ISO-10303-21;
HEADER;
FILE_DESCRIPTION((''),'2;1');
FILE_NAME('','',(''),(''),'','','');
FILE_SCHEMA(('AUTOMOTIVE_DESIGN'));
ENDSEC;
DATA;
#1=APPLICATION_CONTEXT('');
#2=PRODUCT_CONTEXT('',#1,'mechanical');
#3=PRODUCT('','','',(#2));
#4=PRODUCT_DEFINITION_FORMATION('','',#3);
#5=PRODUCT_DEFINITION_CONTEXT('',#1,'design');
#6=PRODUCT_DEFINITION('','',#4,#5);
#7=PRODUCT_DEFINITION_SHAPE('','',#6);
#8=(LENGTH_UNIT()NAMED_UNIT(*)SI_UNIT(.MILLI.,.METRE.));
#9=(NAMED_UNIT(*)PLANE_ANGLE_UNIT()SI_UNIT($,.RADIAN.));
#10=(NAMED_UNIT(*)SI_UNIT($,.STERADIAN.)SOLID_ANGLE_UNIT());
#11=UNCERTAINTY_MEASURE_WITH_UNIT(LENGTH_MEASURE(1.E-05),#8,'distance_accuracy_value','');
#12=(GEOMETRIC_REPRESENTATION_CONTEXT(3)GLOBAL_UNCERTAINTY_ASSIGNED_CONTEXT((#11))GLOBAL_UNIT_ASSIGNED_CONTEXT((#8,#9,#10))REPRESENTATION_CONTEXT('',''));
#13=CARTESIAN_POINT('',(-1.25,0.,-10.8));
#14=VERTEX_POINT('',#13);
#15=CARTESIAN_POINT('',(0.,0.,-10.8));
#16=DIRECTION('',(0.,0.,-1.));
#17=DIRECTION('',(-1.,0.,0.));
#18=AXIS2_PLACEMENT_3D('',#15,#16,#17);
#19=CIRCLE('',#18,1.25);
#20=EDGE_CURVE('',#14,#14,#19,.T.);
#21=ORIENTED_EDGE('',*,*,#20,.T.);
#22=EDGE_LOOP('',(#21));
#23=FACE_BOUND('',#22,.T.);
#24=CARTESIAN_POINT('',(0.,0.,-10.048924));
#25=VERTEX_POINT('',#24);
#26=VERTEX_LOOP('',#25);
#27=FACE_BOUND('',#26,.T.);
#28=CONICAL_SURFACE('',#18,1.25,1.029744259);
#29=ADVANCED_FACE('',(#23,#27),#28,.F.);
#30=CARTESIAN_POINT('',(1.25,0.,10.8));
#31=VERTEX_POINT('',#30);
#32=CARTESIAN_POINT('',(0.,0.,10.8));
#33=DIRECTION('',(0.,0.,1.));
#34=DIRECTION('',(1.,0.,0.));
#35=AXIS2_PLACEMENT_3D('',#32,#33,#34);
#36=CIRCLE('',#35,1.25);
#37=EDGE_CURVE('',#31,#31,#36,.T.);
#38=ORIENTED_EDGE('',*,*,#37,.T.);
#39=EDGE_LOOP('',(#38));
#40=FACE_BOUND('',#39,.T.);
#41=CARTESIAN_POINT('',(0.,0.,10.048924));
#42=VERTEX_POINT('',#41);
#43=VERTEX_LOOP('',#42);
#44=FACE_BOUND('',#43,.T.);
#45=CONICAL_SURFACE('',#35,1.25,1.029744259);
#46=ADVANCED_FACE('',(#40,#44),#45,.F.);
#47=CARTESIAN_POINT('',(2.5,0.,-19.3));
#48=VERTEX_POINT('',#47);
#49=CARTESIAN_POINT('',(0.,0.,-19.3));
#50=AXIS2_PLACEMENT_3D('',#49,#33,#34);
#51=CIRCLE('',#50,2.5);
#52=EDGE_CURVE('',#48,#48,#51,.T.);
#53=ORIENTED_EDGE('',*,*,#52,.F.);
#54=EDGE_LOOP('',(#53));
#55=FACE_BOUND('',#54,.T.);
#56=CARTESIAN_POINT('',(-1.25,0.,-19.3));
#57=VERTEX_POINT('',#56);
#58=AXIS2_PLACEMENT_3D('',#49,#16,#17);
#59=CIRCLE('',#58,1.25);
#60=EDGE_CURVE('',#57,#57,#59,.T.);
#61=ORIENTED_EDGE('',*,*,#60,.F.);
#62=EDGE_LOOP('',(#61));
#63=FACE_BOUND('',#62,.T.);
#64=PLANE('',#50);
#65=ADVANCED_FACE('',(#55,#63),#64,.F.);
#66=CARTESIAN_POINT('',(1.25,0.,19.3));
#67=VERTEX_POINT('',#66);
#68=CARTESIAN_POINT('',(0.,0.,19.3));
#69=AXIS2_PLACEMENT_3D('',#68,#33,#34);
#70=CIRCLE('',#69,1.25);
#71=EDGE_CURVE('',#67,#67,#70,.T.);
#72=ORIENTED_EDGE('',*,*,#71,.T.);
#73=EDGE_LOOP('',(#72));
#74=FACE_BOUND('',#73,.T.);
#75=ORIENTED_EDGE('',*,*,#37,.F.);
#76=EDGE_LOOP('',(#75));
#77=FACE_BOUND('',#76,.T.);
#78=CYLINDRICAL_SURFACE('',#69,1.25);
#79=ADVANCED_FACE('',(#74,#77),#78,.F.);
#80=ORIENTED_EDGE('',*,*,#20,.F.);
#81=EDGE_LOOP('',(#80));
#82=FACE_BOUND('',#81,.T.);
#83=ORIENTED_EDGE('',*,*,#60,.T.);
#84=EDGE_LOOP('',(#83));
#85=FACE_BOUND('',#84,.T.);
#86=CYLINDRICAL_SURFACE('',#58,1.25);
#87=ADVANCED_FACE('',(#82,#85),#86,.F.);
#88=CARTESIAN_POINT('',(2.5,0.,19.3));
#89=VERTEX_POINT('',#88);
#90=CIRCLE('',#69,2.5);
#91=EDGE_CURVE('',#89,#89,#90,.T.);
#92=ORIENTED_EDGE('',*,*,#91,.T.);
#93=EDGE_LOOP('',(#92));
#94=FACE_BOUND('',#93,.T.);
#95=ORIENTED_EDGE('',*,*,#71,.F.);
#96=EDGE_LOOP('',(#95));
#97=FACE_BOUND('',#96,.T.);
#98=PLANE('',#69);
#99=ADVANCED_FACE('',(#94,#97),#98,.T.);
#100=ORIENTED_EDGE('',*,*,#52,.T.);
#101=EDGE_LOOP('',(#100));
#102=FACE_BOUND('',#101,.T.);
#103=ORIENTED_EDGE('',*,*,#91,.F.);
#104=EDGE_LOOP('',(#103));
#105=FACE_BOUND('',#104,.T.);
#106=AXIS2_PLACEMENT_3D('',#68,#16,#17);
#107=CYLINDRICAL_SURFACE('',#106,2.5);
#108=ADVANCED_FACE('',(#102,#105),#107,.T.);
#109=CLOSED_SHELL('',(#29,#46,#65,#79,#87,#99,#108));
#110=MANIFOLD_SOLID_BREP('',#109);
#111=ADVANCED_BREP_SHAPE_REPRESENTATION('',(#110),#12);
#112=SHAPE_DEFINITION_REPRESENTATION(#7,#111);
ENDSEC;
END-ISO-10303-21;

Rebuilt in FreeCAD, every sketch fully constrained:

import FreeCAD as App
import Part
import Sketcher
from FreeCAD import Vector
Q = App.Units.Quantity

doc = App.newDocument("Part")
params = doc.addObject("Spreadsheet::Sheet", "Params")
for row, (alias, value) in enumerate([
    ("sketch1_diameter", "5 mm"),
    ("pad1_length", "38.6 mm"),
    ("sketch2_diameter", "2.5 mm"),
    ("hole_diameter", "2.5 mm"),
    ("hole_depth", "8.5 mm"),
    ("sketch3_diameter", "2.5 mm"),
    ("hole2_diameter", "2.5 mm"),
    ("hole2_depth", "8.5 mm"),
], start=1):
    params.set(f"A{row}", alias)
    params.set(f"B{row}", "=" + value)
    params.setAlias(f"B{row}", alias)

body = doc.addObject("PartDesign::Body", "Body")

sketch1 = body.newObject("Sketcher::SketchObject", "Sketch")
sketch1.AttachmentSupport = (doc.getObject("XY_Plane"), [""])
sketch1.MapMode = "FlatFace"
sketch1.addGeometry(Part.Circle(Vector(0, 0, 0), Vector(0, 0, 1), 2.5), False)
sketch1.addConstraint(Sketcher.Constraint("Coincident", 0, 3, -1, 1))
sketch1.addConstraint(Sketcher.Constraint("Diameter", 0, Q("5 mm")))
sketch1.setExpression("Constraints[1]", "Params.sketch1_diameter")
pad1 = body.newObject("PartDesign::Pad", "Pad")
pad1.Profile = sketch1
pad1.setExpression("Length", "Params.pad1_length")
pad1.Midplane = True

sketch2 = body.newObject("Sketcher::SketchObject", "Sketch001")
sketch2.AttachmentSupport = (doc.getObject("XY_Plane"), [""])
sketch2.MapMode = "FlatFace"
sketch2.AttachmentOffset = App.Placement(Vector(0, 0, 19.3), App.Rotation())
sketch2.addGeometry(Part.Circle(Vector(0, 0, 0), Vector(0, 0, 1), 1.2), False)
sketch2.addConstraint(Sketcher.Constraint("Coincident", 0, 3, -1, 1))
sketch2.addConstraint(Sketcher.Constraint("Diameter", 0, Q("2.5 mm")))
sketch2.setExpression("Constraints[1]", "Params.sketch2_diameter")
doc.recompute()
hole = body.newObject("PartDesign::Hole", "Hole")
hole.Profile = sketch2
hole.ThreadType = "None"
hole.setExpression("Diameter", "Params.hole_diameter")
hole.DepthType = "Dimension"
hole.setExpression("Depth", "Params.hole_depth")
hole.DrillPoint = "Angled"
hole.DrillPointAngle = 118

sketch3 = body.newObject("Sketcher::SketchObject", "Sketch002")
sketch3.AttachmentSupport = (doc.getObject("XY_Plane"), [""])
sketch3.MapMode = "FlatFace"
sketch3.AttachmentOffset = App.Placement(Vector(0, 0, -19.3), App.Rotation())
sketch3.addGeometry(Part.Circle(Vector(0, 0, 0), Vector(0, 0, 1), 1.2), False)
sketch3.addConstraint(Sketcher.Constraint("Coincident", 0, 3, -1, 1))
sketch3.addConstraint(Sketcher.Constraint("Diameter", 0, Q("2.5 mm")))
sketch3.setExpression("Constraints[1]", "Params.sketch3_diameter")
doc.recompute()
hole2 = body.newObject("PartDesign::Hole", "Hole001")
hole2.Profile = sketch3
hole2.ThreadType = "None"
hole2.setExpression("Diameter", "Params.hole2_diameter")
hole2.DepthType = "Dimension"
hole2.setExpression("Depth", "Params.hole2_depth")
hole2.DrillPoint = "Angled"
hole2.DrillPointAngle = 118
hole2.Reversed = True

doc.recompute()
